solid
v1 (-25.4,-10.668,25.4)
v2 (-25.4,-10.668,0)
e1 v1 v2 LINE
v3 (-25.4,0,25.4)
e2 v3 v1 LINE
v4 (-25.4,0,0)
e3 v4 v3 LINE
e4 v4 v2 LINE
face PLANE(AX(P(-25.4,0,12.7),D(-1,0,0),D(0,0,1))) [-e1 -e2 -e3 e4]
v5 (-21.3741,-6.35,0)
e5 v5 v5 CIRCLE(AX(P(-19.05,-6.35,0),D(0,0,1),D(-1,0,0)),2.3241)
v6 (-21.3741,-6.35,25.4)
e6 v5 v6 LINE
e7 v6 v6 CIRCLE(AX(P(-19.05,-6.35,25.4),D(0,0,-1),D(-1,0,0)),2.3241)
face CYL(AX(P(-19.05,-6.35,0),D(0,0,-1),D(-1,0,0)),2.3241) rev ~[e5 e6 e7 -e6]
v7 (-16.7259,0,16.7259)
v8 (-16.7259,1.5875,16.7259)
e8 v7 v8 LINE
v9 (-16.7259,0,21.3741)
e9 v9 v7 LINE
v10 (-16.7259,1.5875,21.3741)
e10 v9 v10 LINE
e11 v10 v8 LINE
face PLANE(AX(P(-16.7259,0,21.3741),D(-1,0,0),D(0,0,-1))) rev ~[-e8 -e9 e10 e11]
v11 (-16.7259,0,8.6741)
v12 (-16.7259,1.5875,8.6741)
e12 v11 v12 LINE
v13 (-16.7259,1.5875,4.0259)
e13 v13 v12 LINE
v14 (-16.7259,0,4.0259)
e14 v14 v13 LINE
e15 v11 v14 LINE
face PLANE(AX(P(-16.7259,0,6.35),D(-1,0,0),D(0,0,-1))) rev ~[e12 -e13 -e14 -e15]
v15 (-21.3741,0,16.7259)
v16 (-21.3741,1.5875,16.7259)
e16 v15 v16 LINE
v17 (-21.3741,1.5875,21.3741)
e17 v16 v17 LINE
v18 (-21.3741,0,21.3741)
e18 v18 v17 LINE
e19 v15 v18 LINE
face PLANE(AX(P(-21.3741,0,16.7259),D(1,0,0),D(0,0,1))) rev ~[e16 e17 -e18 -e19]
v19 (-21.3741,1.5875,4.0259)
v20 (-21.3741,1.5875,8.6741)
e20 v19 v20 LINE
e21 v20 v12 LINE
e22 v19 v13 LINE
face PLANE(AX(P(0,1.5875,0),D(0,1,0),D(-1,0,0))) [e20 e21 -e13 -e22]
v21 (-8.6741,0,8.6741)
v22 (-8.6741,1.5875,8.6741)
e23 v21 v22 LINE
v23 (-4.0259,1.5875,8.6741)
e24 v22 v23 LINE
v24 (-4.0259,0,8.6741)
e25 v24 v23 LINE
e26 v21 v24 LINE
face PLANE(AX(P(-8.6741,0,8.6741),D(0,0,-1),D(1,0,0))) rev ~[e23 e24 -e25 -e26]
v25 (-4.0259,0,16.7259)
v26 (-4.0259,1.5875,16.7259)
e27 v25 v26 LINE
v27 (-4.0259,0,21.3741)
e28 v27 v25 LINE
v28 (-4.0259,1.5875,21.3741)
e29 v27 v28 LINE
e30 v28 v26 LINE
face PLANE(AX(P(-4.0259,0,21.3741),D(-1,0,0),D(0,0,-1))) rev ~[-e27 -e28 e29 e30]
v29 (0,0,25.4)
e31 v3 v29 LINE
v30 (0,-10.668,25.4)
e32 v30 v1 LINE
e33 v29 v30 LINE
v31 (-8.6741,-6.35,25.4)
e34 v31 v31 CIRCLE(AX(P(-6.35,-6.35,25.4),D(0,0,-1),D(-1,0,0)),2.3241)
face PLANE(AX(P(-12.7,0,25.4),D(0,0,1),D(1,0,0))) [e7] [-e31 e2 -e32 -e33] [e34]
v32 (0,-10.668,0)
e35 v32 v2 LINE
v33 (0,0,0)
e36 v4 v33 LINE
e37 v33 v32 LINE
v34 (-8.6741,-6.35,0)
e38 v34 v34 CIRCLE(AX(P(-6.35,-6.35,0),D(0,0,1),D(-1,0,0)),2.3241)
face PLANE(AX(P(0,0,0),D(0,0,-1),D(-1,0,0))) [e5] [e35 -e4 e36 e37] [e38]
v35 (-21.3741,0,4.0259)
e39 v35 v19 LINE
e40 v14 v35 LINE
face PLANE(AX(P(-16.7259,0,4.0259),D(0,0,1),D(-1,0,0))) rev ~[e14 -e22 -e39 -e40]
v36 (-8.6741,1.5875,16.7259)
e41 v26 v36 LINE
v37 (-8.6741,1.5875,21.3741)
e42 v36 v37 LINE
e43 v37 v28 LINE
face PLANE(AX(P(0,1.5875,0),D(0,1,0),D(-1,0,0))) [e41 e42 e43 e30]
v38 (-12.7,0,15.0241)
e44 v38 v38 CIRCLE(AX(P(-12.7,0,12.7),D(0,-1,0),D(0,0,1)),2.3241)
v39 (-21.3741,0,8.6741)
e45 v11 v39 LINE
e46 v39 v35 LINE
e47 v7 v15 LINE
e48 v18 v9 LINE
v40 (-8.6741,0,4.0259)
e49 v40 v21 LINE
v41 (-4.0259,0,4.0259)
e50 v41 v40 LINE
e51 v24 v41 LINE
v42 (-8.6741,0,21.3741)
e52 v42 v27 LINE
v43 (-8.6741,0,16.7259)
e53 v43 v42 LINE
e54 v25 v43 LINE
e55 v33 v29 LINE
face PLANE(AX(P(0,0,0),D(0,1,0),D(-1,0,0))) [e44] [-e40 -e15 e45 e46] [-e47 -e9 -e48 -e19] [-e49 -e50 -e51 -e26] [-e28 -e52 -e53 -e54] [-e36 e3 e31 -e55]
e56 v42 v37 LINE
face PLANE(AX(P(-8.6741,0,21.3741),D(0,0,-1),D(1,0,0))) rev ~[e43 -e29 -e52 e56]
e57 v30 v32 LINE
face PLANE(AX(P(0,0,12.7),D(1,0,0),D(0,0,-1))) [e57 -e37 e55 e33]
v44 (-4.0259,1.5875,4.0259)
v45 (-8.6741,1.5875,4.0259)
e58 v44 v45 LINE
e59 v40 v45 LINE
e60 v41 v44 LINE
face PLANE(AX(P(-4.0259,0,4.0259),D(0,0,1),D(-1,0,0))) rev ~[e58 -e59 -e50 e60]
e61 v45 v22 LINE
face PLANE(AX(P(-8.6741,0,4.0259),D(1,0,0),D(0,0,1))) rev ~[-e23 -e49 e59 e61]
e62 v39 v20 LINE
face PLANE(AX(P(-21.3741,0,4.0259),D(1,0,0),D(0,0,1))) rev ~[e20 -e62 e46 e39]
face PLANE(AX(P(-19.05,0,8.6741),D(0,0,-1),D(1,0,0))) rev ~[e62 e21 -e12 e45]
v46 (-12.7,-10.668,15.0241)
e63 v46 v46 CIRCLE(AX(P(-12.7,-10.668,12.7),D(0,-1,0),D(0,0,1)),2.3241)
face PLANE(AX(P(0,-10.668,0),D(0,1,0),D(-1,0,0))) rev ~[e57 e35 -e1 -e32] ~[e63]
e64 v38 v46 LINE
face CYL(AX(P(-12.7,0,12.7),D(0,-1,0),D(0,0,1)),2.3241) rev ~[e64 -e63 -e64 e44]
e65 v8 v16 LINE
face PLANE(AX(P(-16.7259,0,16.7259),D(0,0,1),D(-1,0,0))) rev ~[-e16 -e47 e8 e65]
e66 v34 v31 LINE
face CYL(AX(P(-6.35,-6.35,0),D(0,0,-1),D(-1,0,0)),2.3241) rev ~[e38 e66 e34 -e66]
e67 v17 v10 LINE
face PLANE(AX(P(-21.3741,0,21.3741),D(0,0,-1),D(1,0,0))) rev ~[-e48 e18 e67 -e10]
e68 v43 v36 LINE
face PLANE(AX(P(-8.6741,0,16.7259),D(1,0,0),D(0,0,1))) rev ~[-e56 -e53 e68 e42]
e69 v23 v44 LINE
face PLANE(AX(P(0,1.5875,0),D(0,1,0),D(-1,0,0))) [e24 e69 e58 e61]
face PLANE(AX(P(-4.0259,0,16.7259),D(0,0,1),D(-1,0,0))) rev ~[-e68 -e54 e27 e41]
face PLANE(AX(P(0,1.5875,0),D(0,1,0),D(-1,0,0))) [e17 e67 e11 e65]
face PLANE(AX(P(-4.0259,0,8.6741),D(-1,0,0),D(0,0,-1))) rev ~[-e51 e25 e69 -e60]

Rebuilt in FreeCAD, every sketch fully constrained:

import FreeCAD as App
import Part
import Sketcher
Q = App.Units.Quantity

doc = App.newDocument("Part")
body = doc.addObject("PartDesign::Body", "Body")
body.AllowCompound = True

sketch1 = body.newObject("Sketcher::SketchObject", "Sketch")
sketch1.AttachmentSupport = (doc.getObject("XZ_Plane"), [""])
sketch1.MapMode = "FlatFace"
sketch1.addGeometry(Part.LineSegment(App.Vector(-16.7259, 4.0259, 0), App.Vector(-21.3741, 4.0259, 0)), False)
sketch1.addGeometry(Part.LineSegment(App.Vector(-21.3741, 4.0259, 0), App.Vector(-21.3741, 8.6741, 0)), False)
sketch1.addGeometry(Part.LineSegment(App.Vector(-21.3741, 8.6741, 0), App.Vector(-16.7259, 8.6741, 0)), False)
sketch1.addGeometry(Part.LineSegment(App.Vector(-16.7259, 8.6741, 0), App.Vector(-16.7259, 4.0259, 0)), False)
sketch1.addGeometry(Part.LineSegment(App.Vector(-16.7259, 21.3741, 0), App.Vector(-16.7259, 16.7259, 0)), False)
sketch1.addGeometry(Part.LineSegment(App.Vector(-16.7259, 16.7259, 0), App.Vector(-21.3741, 16.7259, 0)), False)
sketch1.addGeometry(Part.LineSegment(App.Vector(-21.3741, 16.7259, 0), App.Vector(-21.3741, 21.3741, 0)), False)
sketch1.addGeometry(Part.LineSegment(App.Vector(-21.3741, 21.3741, 0), App.Vector(-16.7259, 21.3741, 0)), False)
sketch1.addGeometry(Part.LineSegment(App.Vector(-4.0259, 16.7259, 0), App.Vector(-8.6741, 16.7259, 0)), False)
sketch1.addGeometry(Part.LineSegment(App.Vector(-8.6741, 16.7259, 0), App.Vector(-8.6741, 21.3741, 0)), False)
sketch1.addGeometry(Part.LineSegment(App.Vector(-8.6741, 21.3741, 0), App.Vector(-4.0259, 21.3741, 0)), False)
sketch1.addGeometry(Part.LineSegment(App.Vector(-4.0259, 21.3741, 0), App.Vector(-4.0259, 16.7259, 0)), False)
sketch1.addGeometry(Part.LineSegment(App.Vector(-4.0259, 4.0259, 0), App.Vector(-8.6741, 4.0259, 0)), False)
sketch1.addGeometry(Part.LineSegment(App.Vector(-8.6741, 4.0259, 0), App.Vector(-8.6741, 8.6741, 0)), False)
sketch1.addGeometry(Part.LineSegment(App.Vector(-8.6741, 8.6741, 0), App.Vector(-4.0259, 8.6741, 0)), False)
sketch1.addGeometry(Part.LineSegment(App.Vector(-4.0259, 8.6741, 0), App.Vector(-4.0259, 4.0259, 0)), False)
sketch1.addConstraint(Sketcher.Constraint("Coincident", 0, 2, 1, 1))
sketch1.addConstraint(Sketcher.Constraint("Coincident", 1, 2, 2, 1))
sketch1.addConstraint(Sketcher.Constraint("Coincident", 2, 2, 3, 1))
sketch1.addConstraint(Sketcher.Constraint("Coincident", 3, 2, 0, 1))
sketch1.addConstraint(Sketcher.Constraint("Coincident", 4, 2, 5, 1))
sketch1.addConstraint(Sketcher.Constraint("Coincident", 5, 2, 6, 1))
sketch1.addConstraint(Sketcher.Constraint("Coincident", 6, 2, 7, 1))
sketch1.addConstraint(Sketcher.Constraint("Coincident", 7, 2, 4, 1))
sketch1.addConstraint(Sketcher.Constraint("Coincident", 8, 2, 9, 1))
sketch1.addConstraint(Sketcher.Constraint("Coincident", 9, 2, 10, 1))
sketch1.addConstraint(Sketcher.Constraint("Coincident", 10, 2, 11, 1))
sketch1.addConstraint(Sketcher.Constraint("Coincident", 11, 2, 8, 1))
sketch1.addConstraint(Sketcher.Constraint("Coincident", 12, 2, 13, 1))
sketch1.addConstraint(Sketcher.Constraint("Coincident", 13, 2, 14, 1))
sketch1.addConstraint(Sketcher.Constraint("Coincident", 14, 2, 15, 1))
sketch1.addConstraint(Sketcher.Constraint("Coincident", 15, 2, 12, 1))
sketch1.addConstraint(Sketcher.Constraint("Horizontal", 0))
sketch1.addConstraint(Sketcher.Constraint("Vertical", 1))
sketch1.addConstraint(Sketcher.Constraint("Horizontal", 2))
sketch1.addConstraint(Sketcher.Constraint("Vertical", 3))
sketch1.addConstraint(Sketcher.Constraint("Vertical", 4))
sketch1.addConstraint(Sketcher.Constraint("Horizontal", 5))
sketch1.addConstraint(Sketcher.Constraint("Vertical", 6))
sketch1.addConstraint(Sketcher.Constraint("Horizontal", 7))
sketch1.addConstraint(Sketcher.Constraint("Horizontal", 8))
sketch1.addConstraint(Sketcher.Constraint("Vertical", 9))
sketch1.addConstraint(Sketcher.Constraint("Horizontal", 10))
sketch1.addConstraint(Sketcher.Constraint("Vertical", 11))
sketch1.addConstraint(Sketcher.Constraint("Horizontal", 12))
sketch1.addConstraint(Sketcher.Constraint("Vertical", 13))
sketch1.addConstraint(Sketcher.Constraint("Horizontal", 14))
sketch1.addConstraint(Sketcher.Constraint("Vertical", 15))
sketch1.addConstraint(Sketcher.Constraint("Horizontal", 5, 2, 8, 2))
sketch1.addConstraint(Sketcher.Constraint("Horizontal", 7, 2, 9, 2))
sketch1.addConstraint(Sketcher.Constraint("Horizontal", 3, 2, 12, 2))
sketch1.addConstraint(Sketcher.Constraint("Horizontal", 2, 2, 13, 2))
sketch1.addConstraint(Sketcher.Constraint("Vertical", 3, 2, 4, 2))
sketch1.addConstraint(Sketcher.Constraint("Vertical", 1, 2, 5, 2))
sketch1.addConstraint(Sketcher.Constraint("Vertical", 9, 2, 12, 2))
sketch1.addConstraint(Sketcher.Constraint("Vertical", 11, 2, 14, 2))
sketch1.addConstraint(Sketcher.Constraint("Equal", 7, 8))
sketch1.addConstraint(Sketcher.Constraint("Equal", 14, 1))
sketch1.addConstraint(Sketcher.Constraint("Equal", 3, 4))
sketch1.addConstraint(Sketcher.Constraint("DistanceY", 3, 2, 4, 2, Q("0.5 in")))
sketch1.addConstraint(Sketcher.Constraint("DistanceX", 5, 2, 8, 2, Q("0.5 in")))
sketch1.addConstraint(Sketcher.Constraint("DistanceX", 0, 2, 0, 1, Q("0.183 in")))
sketch1.addConstraint(Sketcher.Constraint("DistanceX", 0, 2, -1, 1, Q("0.8415 in")))
sketch1.addConstraint(Sketcher.Constraint("DistanceY", -1, 1, 0, 2, Q("0.1585 in")))
pad1 = body.newObject("PartDesign::Pad", "Pad")
pad1.Profile = sketch1
pad1.Length = Q("0.0625 in")
pad1.Reversed = True

sketch2 = body.newObject("Sketcher::SketchObject", "Sketch001")
sketch2.AttachmentSupport = (doc.getObject("XZ_Plane"), [""])
sketch2.MapMode = "FlatFace"
sketch2.addGeometry(Part.LineSegment(App.Vector(0, 0, 0), App.Vector(-25.4, 0, 0)), False)
sketch2.addGeometry(Part.LineSegment(App.Vector(-25.4, 0, 0), App.Vector(-25.4, 25.4, 0)), False)
sketch2.addGeometry(Part.LineSegment(App.Vector(-25.4, 25.4, 0), App.Vector(0, 25.4, 0)), False)
sketch2.addGeometry(Part.LineSegment(App.Vector(0, 25.4, 0), App.Vector(0, 0, 0)), False)
sketch2.addConstraint(Sketcher.Constraint("Coincident", 0, 2, 1, 1))
sketch2.addConstraint(Sketcher.Constraint("Coincident", 1, 2, 2, 1))
sketch2.addConstraint(Sketcher.Constraint("Coincident", 2, 2, 3, 1))
sketch2.addConstraint(Sketcher.Constraint("Coincident", 3, 2, 0, 1))
sketch2.addConstraint(Sketcher.Constraint("Horizontal", 0))
sketch2.addConstraint(Sketcher.Constraint("Vertical", 1))
sketch2.addConstraint(Sketcher.Constraint("Horizontal", 2))
sketch2.addConstraint(Sketcher.Constraint("Vertical", 3))
sketch2.addConstraint(Sketcher.Constraint("Coincident", 3, 2, -1, 1))
sketch2.addConstraint(Sketcher.Constraint("Equal", 2, 1))
sketch2.addConstraint(Sketcher.Constraint("DistanceX", 0, 2, 0, 1, Q("1 in")))
pad2 = body.newObject("PartDesign::Pad", "Pad001")
pad2.Profile = sketch2
pad2.Length = Q("0.42 in")

sketch3 = body.newObject("Sketcher::SketchObject", "Sketch002")
sketch3.AttachmentSupport = (doc.getObject("XZ_Plane"), [""])
sketch3.MapMode = "FlatFace"
sketch3.addGeometry(Part.Circle(App.Vector(-12.7, 12.7, 0), App.Vector(0, 0, 1), 2.3241), False)
sketch3.addConstraint(Sketcher.Constraint("Diameter", 0, Q("0.183 in")))
sketch3.addConstraint(Sketcher.Constraint("DistanceX", 0, 3, -1, 1, Q("0.5 in")))
sketch3.addConstraint(Sketcher.Constraint("DistanceY", -1, 1, 0, 3, Q("0.5 in")))
doc.recompute()
hole = body.newObject("PartDesign::Hole", "Hole")
hole.Profile = sketch3
hole.ThreadType = "None"
hole.Diameter = Q("0.183 in")
hole.DepthType = "Dimension"
hole.Depth = Q("1.273 in")
hole.DrillPoint = "Angled"
hole.DrillPointAngle = 118
hole.Reversed = True

sketch4 = body.newObject("Sketcher::SketchObject", "Sketch003")
sketch4.AttachmentSupport = (doc.getObject("XY_Plane"), [""])
sketch4.MapMode = "FlatFace"
sketch4.addGeometry(Part.Circle(App.Vector(-19.05, -6.35, 0), App.Vector(0, 0, 1), 2.3241), False)
sketch4.addGeometry(Part.Circle(App.Vector(-6.35, -6.35, 0), App.Vector(0, 0, 1), 2.3241), False)
sketch4.addConstraint(Sketcher.Constraint("Equal", 0, 1))
sketch4.addConstraint(Sketcher.Constraint("Horizontal", 0, 3, 1, 3))
sketch4.addConstraint(Sketcher.Constraint("Diameter", 0, Q("0.183 in")))
sketch4.addConstraint(Sketcher.Constraint("DistanceX", 0, 3, 1, 3, Q("0.5 in")))
sketch4.addConstraint(Sketcher.Constraint("DistanceX", 0, 3, -1, 1, Q("0.75 in")))
sketch4.addConstraint(Sketcher.Constraint("DistanceY", 0, 3, -1, 1, Q("0.25 in")))
pocket1 = body.newObject("PartDesign::Pocket", "Pocket")
pocket1.Profile = sketch4
pocket1.Type = "ThroughAll"
pocket1.Reversed = True

doc.recompute()
